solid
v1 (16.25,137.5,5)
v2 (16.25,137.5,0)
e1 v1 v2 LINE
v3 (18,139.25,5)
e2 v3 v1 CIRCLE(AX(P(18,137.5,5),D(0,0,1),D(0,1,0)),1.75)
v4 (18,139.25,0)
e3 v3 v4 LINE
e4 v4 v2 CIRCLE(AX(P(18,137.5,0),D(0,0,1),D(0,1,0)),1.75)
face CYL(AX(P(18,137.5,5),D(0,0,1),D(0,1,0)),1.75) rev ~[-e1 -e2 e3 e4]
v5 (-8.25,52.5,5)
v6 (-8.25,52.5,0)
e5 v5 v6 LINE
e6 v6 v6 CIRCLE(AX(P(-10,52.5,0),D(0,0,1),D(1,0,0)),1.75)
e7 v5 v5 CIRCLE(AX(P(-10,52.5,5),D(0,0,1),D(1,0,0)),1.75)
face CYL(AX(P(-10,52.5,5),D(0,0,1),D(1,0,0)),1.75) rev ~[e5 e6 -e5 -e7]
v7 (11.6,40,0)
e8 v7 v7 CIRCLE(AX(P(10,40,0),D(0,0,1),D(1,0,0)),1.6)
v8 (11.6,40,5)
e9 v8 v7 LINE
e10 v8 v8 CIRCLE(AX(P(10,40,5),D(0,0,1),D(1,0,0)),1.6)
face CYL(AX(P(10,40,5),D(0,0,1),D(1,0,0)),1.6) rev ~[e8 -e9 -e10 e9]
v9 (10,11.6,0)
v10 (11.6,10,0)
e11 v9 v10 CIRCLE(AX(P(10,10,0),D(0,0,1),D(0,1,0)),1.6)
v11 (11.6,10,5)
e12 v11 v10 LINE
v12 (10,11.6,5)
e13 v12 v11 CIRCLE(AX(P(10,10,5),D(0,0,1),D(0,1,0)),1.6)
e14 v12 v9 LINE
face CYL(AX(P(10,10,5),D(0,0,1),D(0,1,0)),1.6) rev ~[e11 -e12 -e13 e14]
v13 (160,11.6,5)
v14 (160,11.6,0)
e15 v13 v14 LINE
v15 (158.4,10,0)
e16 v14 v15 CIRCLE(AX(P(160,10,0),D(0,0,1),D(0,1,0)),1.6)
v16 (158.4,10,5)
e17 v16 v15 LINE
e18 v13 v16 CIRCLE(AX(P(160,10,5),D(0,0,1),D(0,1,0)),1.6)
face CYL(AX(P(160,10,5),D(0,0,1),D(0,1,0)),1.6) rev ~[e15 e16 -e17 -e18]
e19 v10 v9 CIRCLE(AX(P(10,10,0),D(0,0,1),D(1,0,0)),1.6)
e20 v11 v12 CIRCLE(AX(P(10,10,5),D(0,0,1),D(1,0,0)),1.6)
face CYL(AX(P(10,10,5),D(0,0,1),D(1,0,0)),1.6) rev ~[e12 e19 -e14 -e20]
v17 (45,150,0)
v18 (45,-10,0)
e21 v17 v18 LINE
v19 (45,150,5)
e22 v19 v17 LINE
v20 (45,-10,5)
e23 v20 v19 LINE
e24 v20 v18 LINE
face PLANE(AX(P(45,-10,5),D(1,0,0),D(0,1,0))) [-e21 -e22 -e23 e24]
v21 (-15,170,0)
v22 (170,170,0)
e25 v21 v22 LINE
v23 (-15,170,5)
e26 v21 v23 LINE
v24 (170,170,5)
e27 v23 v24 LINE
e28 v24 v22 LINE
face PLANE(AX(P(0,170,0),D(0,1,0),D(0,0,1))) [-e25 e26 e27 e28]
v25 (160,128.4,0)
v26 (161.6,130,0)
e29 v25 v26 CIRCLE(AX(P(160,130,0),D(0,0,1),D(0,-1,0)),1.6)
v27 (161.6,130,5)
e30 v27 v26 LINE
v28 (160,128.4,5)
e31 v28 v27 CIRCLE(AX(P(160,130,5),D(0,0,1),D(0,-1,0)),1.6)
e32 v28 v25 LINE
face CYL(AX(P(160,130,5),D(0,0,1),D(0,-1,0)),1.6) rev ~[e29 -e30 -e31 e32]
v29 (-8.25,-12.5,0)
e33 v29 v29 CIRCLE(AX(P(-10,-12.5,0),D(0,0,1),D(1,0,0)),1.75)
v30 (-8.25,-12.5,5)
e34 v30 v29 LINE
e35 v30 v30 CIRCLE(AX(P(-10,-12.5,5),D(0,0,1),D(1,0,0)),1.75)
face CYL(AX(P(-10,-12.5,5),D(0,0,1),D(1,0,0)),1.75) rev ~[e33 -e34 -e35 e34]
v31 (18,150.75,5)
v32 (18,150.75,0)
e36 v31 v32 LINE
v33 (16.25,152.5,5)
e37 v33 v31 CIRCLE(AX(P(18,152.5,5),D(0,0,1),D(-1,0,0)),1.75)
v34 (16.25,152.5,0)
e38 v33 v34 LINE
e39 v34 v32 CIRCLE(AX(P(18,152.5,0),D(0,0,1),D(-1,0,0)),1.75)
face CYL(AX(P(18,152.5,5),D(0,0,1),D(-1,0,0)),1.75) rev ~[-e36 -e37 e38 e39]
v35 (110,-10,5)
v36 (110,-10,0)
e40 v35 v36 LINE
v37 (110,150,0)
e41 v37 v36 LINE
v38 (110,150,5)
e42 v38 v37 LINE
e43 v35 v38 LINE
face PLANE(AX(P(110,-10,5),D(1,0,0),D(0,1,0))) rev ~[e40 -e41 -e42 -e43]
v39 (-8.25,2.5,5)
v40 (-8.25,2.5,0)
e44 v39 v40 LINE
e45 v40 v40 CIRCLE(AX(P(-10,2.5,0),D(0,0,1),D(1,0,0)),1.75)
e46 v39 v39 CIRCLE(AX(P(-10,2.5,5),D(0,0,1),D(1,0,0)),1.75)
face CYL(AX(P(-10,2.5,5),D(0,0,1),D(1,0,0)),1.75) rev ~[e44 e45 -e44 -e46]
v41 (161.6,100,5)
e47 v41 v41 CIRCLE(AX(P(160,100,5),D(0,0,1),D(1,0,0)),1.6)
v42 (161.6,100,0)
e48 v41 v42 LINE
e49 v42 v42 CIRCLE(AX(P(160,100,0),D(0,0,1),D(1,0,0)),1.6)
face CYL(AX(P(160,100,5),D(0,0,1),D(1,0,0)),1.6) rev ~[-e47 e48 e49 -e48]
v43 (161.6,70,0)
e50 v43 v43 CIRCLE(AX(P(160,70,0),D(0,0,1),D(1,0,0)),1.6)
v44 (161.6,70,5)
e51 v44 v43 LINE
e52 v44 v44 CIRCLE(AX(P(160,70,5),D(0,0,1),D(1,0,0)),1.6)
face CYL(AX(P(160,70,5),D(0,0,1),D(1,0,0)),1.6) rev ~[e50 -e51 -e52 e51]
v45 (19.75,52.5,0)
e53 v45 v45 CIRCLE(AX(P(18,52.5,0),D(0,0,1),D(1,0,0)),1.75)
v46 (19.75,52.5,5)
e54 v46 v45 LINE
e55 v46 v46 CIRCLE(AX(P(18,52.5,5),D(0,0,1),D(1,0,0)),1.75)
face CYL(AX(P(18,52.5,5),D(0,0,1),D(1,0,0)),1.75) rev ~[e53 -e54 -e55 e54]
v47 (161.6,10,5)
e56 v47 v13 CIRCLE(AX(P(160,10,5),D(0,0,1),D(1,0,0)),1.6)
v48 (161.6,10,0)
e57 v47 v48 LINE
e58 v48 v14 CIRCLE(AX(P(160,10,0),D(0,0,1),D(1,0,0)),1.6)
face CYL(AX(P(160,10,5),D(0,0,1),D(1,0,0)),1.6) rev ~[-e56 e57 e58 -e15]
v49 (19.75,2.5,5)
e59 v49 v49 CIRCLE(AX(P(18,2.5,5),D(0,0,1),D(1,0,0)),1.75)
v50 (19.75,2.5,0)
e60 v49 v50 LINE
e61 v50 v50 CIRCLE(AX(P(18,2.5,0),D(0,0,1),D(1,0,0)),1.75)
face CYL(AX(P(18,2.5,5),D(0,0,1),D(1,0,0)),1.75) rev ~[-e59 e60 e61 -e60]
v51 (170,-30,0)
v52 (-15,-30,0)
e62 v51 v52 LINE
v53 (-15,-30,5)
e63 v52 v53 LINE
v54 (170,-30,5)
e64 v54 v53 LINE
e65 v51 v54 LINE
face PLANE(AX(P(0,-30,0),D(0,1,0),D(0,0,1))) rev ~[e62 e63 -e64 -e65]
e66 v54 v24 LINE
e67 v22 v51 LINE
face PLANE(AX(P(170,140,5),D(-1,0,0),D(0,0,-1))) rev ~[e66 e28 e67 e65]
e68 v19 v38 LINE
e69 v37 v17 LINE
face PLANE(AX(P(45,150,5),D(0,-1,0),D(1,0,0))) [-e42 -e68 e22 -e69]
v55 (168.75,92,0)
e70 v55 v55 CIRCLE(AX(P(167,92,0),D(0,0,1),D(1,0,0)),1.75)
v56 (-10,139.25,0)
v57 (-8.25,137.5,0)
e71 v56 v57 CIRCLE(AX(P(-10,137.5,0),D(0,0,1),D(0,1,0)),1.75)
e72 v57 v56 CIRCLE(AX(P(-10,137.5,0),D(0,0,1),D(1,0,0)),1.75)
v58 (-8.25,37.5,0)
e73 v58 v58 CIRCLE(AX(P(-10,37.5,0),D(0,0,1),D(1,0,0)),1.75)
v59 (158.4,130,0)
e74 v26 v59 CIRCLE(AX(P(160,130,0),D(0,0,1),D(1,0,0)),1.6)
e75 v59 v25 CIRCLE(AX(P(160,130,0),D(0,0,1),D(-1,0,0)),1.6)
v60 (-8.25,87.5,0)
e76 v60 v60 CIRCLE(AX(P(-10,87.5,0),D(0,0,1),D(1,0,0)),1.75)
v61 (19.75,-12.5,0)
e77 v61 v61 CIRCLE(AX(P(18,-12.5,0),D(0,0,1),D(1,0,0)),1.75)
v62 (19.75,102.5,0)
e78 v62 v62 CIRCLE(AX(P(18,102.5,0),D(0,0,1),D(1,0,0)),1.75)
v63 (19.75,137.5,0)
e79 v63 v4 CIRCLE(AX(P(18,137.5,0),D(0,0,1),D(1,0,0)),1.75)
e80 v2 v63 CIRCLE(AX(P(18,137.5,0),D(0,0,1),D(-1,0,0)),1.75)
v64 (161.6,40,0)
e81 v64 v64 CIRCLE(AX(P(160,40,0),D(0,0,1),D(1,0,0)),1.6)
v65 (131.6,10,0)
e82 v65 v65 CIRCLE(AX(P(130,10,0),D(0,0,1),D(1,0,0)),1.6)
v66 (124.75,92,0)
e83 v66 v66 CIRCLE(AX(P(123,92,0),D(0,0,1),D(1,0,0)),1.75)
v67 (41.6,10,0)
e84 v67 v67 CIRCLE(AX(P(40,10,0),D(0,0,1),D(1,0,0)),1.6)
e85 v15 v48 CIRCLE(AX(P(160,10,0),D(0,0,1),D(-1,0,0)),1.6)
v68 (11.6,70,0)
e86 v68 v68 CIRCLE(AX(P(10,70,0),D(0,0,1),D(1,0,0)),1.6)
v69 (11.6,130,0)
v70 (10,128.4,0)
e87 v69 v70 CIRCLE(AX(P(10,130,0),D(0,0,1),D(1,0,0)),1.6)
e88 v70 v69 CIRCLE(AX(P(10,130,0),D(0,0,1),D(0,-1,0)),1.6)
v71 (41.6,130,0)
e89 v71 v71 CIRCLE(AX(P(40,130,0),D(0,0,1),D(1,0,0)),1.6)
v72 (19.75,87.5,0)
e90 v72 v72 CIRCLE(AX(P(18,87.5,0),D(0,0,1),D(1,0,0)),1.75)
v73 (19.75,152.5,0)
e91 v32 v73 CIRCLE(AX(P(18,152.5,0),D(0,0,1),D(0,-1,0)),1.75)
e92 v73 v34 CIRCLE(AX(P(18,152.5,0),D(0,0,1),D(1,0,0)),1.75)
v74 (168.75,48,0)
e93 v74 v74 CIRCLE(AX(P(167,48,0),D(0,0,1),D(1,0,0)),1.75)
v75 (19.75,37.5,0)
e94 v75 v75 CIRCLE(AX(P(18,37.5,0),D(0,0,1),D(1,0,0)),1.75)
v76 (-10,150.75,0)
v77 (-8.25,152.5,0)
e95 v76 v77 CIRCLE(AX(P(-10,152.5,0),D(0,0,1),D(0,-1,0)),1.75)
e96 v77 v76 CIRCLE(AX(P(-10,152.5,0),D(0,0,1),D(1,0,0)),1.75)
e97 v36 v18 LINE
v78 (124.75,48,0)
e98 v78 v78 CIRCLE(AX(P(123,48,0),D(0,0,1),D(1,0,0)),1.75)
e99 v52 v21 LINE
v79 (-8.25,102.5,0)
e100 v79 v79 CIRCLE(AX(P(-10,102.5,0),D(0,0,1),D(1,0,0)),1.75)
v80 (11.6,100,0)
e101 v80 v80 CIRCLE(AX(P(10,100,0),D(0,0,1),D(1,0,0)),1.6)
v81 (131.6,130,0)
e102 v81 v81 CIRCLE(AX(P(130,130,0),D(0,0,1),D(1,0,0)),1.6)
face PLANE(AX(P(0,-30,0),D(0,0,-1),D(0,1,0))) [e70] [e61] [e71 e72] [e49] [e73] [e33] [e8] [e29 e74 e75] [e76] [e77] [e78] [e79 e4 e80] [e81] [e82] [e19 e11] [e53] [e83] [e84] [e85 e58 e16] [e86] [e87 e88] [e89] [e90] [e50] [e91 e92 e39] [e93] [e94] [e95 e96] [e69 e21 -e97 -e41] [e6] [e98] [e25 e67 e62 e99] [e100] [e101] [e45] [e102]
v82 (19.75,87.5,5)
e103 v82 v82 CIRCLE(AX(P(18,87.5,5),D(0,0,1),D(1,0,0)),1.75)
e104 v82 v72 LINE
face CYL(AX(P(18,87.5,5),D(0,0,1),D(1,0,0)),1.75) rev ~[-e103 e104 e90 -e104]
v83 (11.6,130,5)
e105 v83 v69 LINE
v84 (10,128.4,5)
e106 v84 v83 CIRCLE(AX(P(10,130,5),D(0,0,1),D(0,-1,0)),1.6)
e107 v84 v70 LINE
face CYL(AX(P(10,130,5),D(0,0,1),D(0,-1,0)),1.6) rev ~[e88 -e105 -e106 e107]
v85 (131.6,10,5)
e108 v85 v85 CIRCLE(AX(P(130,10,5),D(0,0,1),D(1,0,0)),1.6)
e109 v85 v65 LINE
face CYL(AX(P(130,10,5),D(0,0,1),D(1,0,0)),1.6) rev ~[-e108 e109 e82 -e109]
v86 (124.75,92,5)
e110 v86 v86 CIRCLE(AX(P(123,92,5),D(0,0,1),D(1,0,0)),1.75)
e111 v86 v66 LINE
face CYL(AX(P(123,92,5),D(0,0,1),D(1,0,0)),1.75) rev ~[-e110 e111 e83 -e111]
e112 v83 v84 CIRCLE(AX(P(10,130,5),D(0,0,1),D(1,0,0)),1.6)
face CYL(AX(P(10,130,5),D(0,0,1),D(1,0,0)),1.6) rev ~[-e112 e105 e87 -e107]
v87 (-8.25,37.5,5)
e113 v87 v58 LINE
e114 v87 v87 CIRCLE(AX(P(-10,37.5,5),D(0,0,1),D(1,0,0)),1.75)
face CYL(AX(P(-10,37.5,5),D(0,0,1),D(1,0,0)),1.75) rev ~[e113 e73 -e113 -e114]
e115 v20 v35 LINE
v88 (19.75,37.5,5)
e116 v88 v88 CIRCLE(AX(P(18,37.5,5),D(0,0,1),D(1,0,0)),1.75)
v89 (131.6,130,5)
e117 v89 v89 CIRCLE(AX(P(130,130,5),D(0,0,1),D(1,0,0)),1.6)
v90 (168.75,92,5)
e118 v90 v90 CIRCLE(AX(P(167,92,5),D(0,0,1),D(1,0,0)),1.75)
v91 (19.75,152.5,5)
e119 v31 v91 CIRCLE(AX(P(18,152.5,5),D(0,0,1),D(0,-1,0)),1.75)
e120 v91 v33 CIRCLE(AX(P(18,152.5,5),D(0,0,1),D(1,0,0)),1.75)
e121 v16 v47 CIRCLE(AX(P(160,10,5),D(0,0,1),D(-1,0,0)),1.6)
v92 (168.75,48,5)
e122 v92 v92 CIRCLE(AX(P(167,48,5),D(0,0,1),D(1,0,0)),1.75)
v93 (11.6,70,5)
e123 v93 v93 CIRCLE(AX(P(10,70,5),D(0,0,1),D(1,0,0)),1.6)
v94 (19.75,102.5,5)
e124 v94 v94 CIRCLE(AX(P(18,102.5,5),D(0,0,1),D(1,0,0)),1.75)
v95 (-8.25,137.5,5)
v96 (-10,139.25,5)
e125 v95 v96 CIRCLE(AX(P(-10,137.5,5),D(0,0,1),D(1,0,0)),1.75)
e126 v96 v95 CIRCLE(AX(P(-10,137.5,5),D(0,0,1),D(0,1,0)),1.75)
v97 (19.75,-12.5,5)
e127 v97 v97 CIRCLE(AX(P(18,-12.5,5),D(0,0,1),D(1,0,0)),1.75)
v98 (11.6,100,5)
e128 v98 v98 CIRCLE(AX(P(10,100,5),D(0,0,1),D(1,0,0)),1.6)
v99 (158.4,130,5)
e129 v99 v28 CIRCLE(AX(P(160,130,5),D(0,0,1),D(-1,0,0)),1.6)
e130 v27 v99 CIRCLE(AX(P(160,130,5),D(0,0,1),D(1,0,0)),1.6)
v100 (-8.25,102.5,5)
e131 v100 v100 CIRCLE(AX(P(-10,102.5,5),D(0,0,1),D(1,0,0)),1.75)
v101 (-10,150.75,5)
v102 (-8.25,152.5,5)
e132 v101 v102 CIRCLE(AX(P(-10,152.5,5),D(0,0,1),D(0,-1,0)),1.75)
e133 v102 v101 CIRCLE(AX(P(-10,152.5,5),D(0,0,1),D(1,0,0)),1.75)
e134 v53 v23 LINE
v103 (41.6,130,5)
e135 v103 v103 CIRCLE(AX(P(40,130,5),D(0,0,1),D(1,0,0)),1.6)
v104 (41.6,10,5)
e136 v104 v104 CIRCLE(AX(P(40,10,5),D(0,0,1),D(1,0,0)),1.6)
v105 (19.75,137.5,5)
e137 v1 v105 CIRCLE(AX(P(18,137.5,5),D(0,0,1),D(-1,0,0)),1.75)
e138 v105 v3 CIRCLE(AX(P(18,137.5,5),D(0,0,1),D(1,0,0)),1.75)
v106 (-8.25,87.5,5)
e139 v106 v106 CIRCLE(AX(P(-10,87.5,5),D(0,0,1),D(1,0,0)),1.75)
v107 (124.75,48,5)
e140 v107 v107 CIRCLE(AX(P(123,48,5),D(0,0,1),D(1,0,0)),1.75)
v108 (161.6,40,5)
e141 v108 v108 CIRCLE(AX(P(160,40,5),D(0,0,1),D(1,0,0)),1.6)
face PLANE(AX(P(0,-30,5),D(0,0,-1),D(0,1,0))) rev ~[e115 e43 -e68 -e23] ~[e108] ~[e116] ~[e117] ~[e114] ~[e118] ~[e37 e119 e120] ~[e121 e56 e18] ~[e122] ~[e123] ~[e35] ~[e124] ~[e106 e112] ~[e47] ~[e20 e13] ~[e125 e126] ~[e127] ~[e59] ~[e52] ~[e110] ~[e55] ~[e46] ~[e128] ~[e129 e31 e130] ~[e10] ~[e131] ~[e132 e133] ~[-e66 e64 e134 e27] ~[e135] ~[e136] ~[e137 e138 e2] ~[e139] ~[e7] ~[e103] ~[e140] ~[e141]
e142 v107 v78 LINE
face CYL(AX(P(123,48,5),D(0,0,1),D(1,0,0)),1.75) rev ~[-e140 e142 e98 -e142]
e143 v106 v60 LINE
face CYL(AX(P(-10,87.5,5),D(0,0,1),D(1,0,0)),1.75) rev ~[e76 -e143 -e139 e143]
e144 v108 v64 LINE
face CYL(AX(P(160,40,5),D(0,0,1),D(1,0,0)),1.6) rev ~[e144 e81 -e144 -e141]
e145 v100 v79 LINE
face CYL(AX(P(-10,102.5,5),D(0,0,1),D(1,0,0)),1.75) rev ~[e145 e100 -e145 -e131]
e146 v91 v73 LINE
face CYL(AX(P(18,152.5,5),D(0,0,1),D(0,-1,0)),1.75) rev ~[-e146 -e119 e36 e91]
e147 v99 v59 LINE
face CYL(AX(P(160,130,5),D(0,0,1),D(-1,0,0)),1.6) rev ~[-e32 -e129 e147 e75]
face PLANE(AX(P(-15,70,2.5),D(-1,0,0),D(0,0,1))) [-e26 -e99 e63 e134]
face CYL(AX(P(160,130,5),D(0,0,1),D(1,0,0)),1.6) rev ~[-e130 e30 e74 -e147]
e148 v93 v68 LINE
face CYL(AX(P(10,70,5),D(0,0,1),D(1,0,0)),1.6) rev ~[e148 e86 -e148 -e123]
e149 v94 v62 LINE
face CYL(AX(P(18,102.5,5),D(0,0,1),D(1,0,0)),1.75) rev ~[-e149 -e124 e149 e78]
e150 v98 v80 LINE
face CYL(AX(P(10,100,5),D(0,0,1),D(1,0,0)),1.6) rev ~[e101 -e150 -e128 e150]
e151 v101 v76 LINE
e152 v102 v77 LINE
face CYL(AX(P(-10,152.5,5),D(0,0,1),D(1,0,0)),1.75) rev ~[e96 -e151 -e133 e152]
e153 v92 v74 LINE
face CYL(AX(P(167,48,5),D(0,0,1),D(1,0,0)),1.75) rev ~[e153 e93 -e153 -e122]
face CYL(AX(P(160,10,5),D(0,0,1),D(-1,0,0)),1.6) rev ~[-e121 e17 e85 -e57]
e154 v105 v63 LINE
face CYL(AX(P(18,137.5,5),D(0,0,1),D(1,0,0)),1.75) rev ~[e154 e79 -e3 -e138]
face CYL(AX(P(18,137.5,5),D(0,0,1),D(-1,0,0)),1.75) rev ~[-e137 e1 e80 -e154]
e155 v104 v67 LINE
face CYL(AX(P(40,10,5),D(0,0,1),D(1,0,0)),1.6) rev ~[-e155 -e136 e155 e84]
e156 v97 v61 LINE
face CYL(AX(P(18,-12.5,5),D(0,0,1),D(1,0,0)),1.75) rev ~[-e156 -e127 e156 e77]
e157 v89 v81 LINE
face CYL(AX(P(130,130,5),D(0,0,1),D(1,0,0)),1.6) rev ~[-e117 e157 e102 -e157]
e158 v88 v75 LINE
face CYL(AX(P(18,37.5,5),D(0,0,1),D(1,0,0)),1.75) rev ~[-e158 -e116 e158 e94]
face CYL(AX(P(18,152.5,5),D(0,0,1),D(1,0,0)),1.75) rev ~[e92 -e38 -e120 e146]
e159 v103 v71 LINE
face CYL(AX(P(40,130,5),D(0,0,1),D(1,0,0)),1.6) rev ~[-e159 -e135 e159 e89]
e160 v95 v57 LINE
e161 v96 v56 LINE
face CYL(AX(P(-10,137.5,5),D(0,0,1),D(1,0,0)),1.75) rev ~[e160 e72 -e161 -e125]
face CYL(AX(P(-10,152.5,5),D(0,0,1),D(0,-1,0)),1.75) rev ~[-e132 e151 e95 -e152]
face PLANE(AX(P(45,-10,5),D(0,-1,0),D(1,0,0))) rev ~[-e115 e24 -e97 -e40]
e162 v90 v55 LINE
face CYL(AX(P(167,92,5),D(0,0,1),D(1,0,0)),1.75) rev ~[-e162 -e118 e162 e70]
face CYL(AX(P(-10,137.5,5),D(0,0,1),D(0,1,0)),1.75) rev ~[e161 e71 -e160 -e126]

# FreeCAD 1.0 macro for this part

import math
import FreeCAD as App
import Part
import Sketcher
Q = App.Units.Quantity

doc = App.newDocument("Part")
params = doc.addObject("Spreadsheet::Sheet", "Params")
for row, (alias, value) in enumerate([
    ("sketch1_width", "170 mm"),
    ("sketch1_height", "140 mm"),
    ("pad1_length", "5 mm"),
    ("sketch2_radius", "1.6 mm"),
    ("pocket1_length", "5 mm"),
    ("sketch3_diameter", "3.2 mm"),
    ("pocket2_length", "5 mm"),
    ("sketch4_width", "170 mm"),
    ("sketch4_height", "5 mm"),
    ("pad2_length", "30 mm"),
    ("sketch5_width", "170 mm"),
    ("sketch5_height", "5 mm"),
    ("pad3_length", "30 mm"),
    ("sketch6_width", "65 mm"),
    ("sketch6_height", "160 mm"),
    ("pocket3_length", "30 mm"),
    ("sketch7_diameter", "3.5 mm"),
    ("pocket4_length", "30 mm"),
    ("sketch8_width", "200 mm"),
    ("sketch8_height", "5 mm"),
    ("pad4_length", "15 mm"),
    ("sketch9_diameter", "3.5 mm"),
    ("pocket5_length", "15 mm"),
], start=1):
    params.set(f"A{row}", alias)
    params.set(f"B{row}", "=" + value)
    params.setAlias(f"B{row}", alias)

body = doc.addObject("PartDesign::Body", "Body")

# Sketch on XY plane
sketch1 = body.newObject("Sketcher::SketchObject", "Sketch")
sketch1.AttachmentSupport = (doc.getObject("XY_Plane"), [""])
sketch1.MapMode = "FlatFace"
sketch1.addGeometry([
    Part.LineSegment(App.Vector(0, 140, 0), App.Vector(0, 0, 0)),
    Part.LineSegment(App.Vector(0, 0, 0), App.Vector(170, 0, 0)),
    Part.LineSegment(App.Vector(170, 0, 0), App.Vector(170, 140, 0)),
    Part.LineSegment(App.Vector(170, 140, 0), App.Vector(0, 140, 0)),
], False)
sketch1.addConstraint([
    Sketcher.Constraint("Coincident", 0, 2, 1, 1),
    Sketcher.Constraint("Coincident", 1, 2, 2, 1),
    Sketcher.Constraint("Coincident", 2, 2, 3, 1),
    Sketcher.Constraint("Coincident", 3, 2, 0, 1),
    Sketcher.Constraint("Vertical", 0),
    Sketcher.Constraint("Horizontal", 1),
    Sketcher.Constraint("Vertical", 2),
    Sketcher.Constraint("Horizontal", 3),
    Sketcher.Constraint("Coincident", 0, 2, -1, 1),
    Sketcher.Constraint("DistanceX", 1, 1, 1, 2, Q("170 mm")),
    Sketcher.Constraint("DistanceY", 0, 2, 0, 1, Q("140 mm")),
])
sketch1.setExpression("Constraints[9]", "Params.sketch1_width")
sketch1.setExpression("Constraints[10]", "Params.sketch1_height")
pad1 = body.newObject("PartDesign::Pad", "Pad")
pad1.Profile = sketch1
pad1.setExpression("Length", "Params.pad1_length")

# Sketch on XY plane
sketch2 = body.newObject("Sketcher::SketchObject", "Sketch001")
sketch2.AttachmentSupport = (doc.getObject("XY_Plane"), [""])
sketch2.MapMode = "FlatFace"
sketch2.AttachmentOffset = App.Placement(App.Vector(0, 0, 5), App.Rotation())
sketch2.addGeometry([
    Part.ArcOfCircle(Part.Circle(App.Vector(10, 130, 0), App.Vector(0, 0, 1), 1.6), math.radians(-90), math.radians(0)),  # 0
    Part.ArcOfCircle(Part.Circle(App.Vector(10, 130, 0), App.Vector(0, 0, 1), 1.6), math.radians(0), math.radians(270)),  # 1
    Part.ArcOfCircle(Part.Circle(App.Vector(10, 10, 0), App.Vector(0, 0, 1), 1.6), math.radians(0), math.radians(90)),  # 2
    Part.ArcOfCircle(Part.Circle(App.Vector(10, 10, 0), App.Vector(0, 0, 1), 1.6), math.radians(90), math.radians(360)),  # 3
    Part.ArcOfCircle(Part.Circle(App.Vector(160, 10, 0), App.Vector(0, 0, 1), 1.6), math.radians(0), math.radians(90)),  # 4
    Part.ArcOfCircle(Part.Circle(App.Vector(160, 10, 0), App.Vector(0, 0, 1), 1.6), math.radians(90), math.radians(180)),  # 5
    Part.ArcOfCircle(Part.Circle(App.Vector(160, 10, 0), App.Vector(0, 0, 1), 1.6), math.radians(180), math.radians(360)),  # 6
    Part.ArcOfCircle(Part.Circle(App.Vector(160, 130, 0), App.Vector(0, 0, 1), 1.6), math.radians(0), math.radians(180)),  # 7
    Part.ArcOfCircle(Part.Circle(App.Vector(160, 130, 0), App.Vector(0, 0, 1), 1.6), math.radians(180), math.radians(270)),  # 8
    Part.ArcOfCircle(Part.Circle(App.Vector(160, 130, 0), App.Vector(0, 0, 1), 1.6), math.radians(-90), math.radians(0)),  # 9
], False)
sketch2.addConstraint([
    Sketcher.Constraint("Tangent", 0, 1, 1, 2),
    Sketcher.Constraint("Coincident", 1, 1, 0, 2),
    Sketcher.Constraint("Tangent", 2, 1, 3, 2),
    Sketcher.Constraint("Coincident", 3, 1, 2, 2),
    Sketcher.Constraint("Tangent", 4, 2, 5, 1),
    Sketcher.Constraint("Tangent", 5, 2, 6, 1),
    Sketcher.Constraint("Tangent", 6, 2, 4, 1),
    Sketcher.Constraint("Tangent", 7, 2, 8, 1),
    Sketcher.Constraint("Tangent", 8, 2, 9, 1),
    Sketcher.Constraint("Tangent", 9, 2, 7, 1),
    Sketcher.Constraint("Equal", 1, 2),
    Sketcher.Constraint("Equal", 3, 4),
    Sketcher.Constraint("Equal", 6, 7),
    Sketcher.Constraint("Horizontal", 3, 3, 4, 3),
    Sketcher.Constraint("Horizontal", 1, 3, 7, 3),
    Sketcher.Constraint("Horizontal", 9, 3, 1, 1),
    Sketcher.Constraint("Horizontal", 6, 3, 2, 1),
    Sketcher.Constraint("Horizontal", 2, 1, 5, 2),
    Sketcher.Constraint("Horizontal", 5, 2, 6, 2),
    Sketcher.Constraint("Horizontal", 1, 1, 7, 2),
    Sketcher.Constraint("Horizontal", 7, 2, 9, 2),
    Sketcher.Constraint("Vertical", 1, 3, 2, 3),
    Sketcher.Constraint("Vertical", 6, 3, 7, 3),
    Sketcher.Constraint("Vertical", 3, 3, 0, 1),
    Sketcher.Constraint("Vertical", 0, 1, 3, 1),
    Sketcher.Constraint("Vertical", 9, 3, 4, 2),
    Sketcher.Constraint("Vertical", 4, 2, 8, 2),
    Sketcher.Constraint("Radius", 0, Q("1.6 mm")),
    Sketcher.Constraint("DistanceX", -1, 1, 0, 3, Q("10 mm")),
    Sketcher.Constraint("DistanceY", -1, 1, 0, 3, Q("130 mm")),
    Sketcher.Constraint("DistanceY", -1, 1, 2, 3, Q("10 mm")),
    Sketcher.Constraint("DistanceX", -1, 1, 4, 3, Q("160 mm")),
])
sketch2.setExpression("Constraints[27]", "Params.sketch2_radius")
pocket1 = body.newObject("PartDesign::Pocket", "Pocket")
pocket1.Profile = sketch2
pocket1.setExpression("Length", "Params.pocket1_length")

# Sketch on XY plane
sketch3 = body.newObject("Sketcher::SketchObject", "Sketch002")
sketch3.AttachmentSupport = (doc.getObject("XY_Plane"), [""])
sketch3.MapMode = "FlatFace"
sketch3.AttachmentOffset = App.Placement(App.Vector(0, 0, 5), App.Rotation())
sketch3.addGeometry([
    Part.Circle(App.Vector(10, 130, 0), App.Vector(0, 0, 1), 1.6),  # 0
    Part.Circle(App.Vector(40, 130, 0), App.Vector(0, 0, 1), 1.6),  # 1
    Part.Circle(App.Vector(70, 130, 0), App.Vector(0, 0, 1), 1.6),  # 2
    Part.Circle(App.Vector(100, 130, 0), App.Vector(0, 0, 1), 1.6),  # 3
    Part.Circle(App.Vector(130, 130, 0), App.Vector(0, 0, 1), 1.6),  # 4
    Part.Circle(App.Vector(10, 10, 0), App.Vector(0, 0, 1), 1.6),  # 5
    Part.Circle(App.Vector(40, 10, 0), App.Vector(0, 0, 1), 1.6),  # 6
    Part.Circle(App.Vector(70, 10, 0), App.Vector(0, 0, 1), 1.6),  # 7
    Part.Circle(App.Vector(100, 10, 0), App.Vector(0, 0, 1), 1.6),  # 8
    Part.Circle(App.Vector(130, 10, 0), App.Vector(0, 0, 1), 1.6),  # 9
    Part.Circle(App.Vector(160, 130, 0), App.Vector(0, 0, 1), 1.6),  # 10
    Part.Circle(App.Vector(10, 100, 0), App.Vector(0, 0, 1), 1.6),  # 11
    Part.Circle(App.Vector(160, 100, 0), App.Vector(0, 0, 1), 1.6),  # 12
    Part.Circle(App.Vector(10, 70, 0), App.Vector(0, 0, 1), 1.6),  # 13
    Part.Circle(App.Vector(160, 70, 0), App.Vector(0, 0, 1), 1.6),  # 14
    Part.Circle(App.Vector(10, 40, 0), App.Vector(0, 0, 1), 1.6),  # 15
    Part.Circle(App.Vector(160, 40, 0), App.Vector(0, 0, 1), 1.6),  # 16
], False)
sketch3.addConstraint([
    Sketcher.Constraint("Equal", 0, 1),
    Sketcher.Constraint("Equal", 1, 2),
    Sketcher.Constraint("Equal", 2, 3),
    Sketcher.Constraint("Equal", 3, 4),
    Sketcher.Constraint("Equal", 4, 5),
    Sketcher.Constraint("Equal", 5, 6),
    Sketcher.Constraint("Equal", 6, 7),
    Sketcher.Constraint("Equal", 7, 8),
    Sketcher.Constraint("Equal", 8, 9),
    Sketcher.Constraint("Equal", 9, 10),
    Sketcher.Constraint("Equal", 10, 11),
    Sketcher.Constraint("Equal", 11, 12),
    Sketcher.Constraint("Equal", 12, 13),
    Sketcher.Constraint("Equal", 13, 14),
    Sketcher.Constraint("Equal", 14, 15),
    Sketcher.Constraint("Equal", 15, 16),
    Sketcher.Constraint("Horizontal", 0, 3, 1, 3),
    Sketcher.Constraint("Horizontal", 1, 3, 2, 3),
    Sketcher.Constraint("Horizontal", 2, 3, 3, 3),
    Sketcher.Constraint("Horizontal", 3, 3, 4, 3),
    Sketcher.Constraint("Horizontal", 5, 3, 6, 3),
    Sketcher.Constraint("Horizontal", 6, 3, 7, 3),
    Sketcher.Constraint("Horizontal", 7, 3, 8, 3),
    Sketcher.Constraint("Horizontal", 8, 3, 9, 3),
    Sketcher.Constraint("Horizontal", 4, 3, 10, 3),
    Sketcher.Constraint("Horizontal", 11, 3, 12, 3),
    Sketcher.Constraint("Horizontal", 13, 3, 14, 3),
    Sketcher.Constraint("Horizontal", 15, 3, 16, 3),
    Sketcher.Constraint("Vertical", 0, 3, 5, 3),
    Sketcher.Constraint("Vertical", 1, 3, 6, 3),
    Sketcher.Constraint("Vertical", 2, 3, 7, 3),
    Sketcher.Constraint("Vertical", 3, 3, 8, 3),
    Sketcher.Constraint("Vertical", 4, 3, 9, 3),
    Sketcher.Constraint("Vertical", 5, 3, 11, 3),
    Sketcher.Constraint("Vertical", 10, 3, 12, 3),
    Sketcher.Constraint("Vertical", 11, 3, 13, 3),
    Sketcher.Constraint("Vertical", 12, 3, 14, 3),
    Sketcher.Constraint("Vertical", 13, 3, 15, 3),
    Sketcher.Constraint("Vertical", 14, 3, 16, 3),
    Sketcher.Constraint("Diameter", 0, Q("3.2 mm")),
    Sketcher.Constraint("DistanceX", -1, 1, 0, 3, Q("10 mm")),
    Sketcher.Constraint("DistanceY", -1, 1, 0, 3, Q("130 mm")),
    Sketcher.Constraint("DistanceX", -1, 1, 1, 3, Q("40 mm")),
    Sketcher.Constraint("DistanceX", -1, 1, 2, 3, Q("70 mm")),
    Sketcher.Constraint("DistanceX", -1, 1, 3, 3, Q("100 mm")),
    Sketcher.Constraint("DistanceX", -1, 1, 4, 3, Q("130 mm")),
    Sketcher.Constraint("DistanceY", -1, 1, 5, 3, Q("10 mm")),
    Sketcher.Constraint("DistanceX", -1, 1, 10, 3, Q("160 mm")),
    Sketcher.Constraint("DistanceY", -1, 1, 11, 3, Q("100 mm")),
    Sketcher.Constraint("DistanceY", -1, 1, 13, 3, Q("70 mm")),
    Sketcher.Constraint("DistanceY", -1, 1, 15, 3, Q("40 mm")),
])
sketch3.setExpression("Constraints[39]", "Params.sketch3_diameter")
pocket2 = body.newObject("PartDesign::Pocket", "Pocket001")
pocket2.Profile = sketch3
pocket2.setExpression("Length", "Params.pocket2_length")

# Sketch on XZ plane
sketch4 = body.newObject("Sketcher::SketchObject", "Sketch003")
sketch4.AttachmentSupport = (doc.getObject("XZ_Plane"), [""])
sketch4.MapMode = "FlatFace"
sketch4.addGeometry([
    Part.LineSegment(App.Vector(0, 5, 0), App.Vector(0, 0, 0)),
    Part.LineSegment(App.Vector(0, 0, 0), App.Vector(170, 0, 0)),
    Part.LineSegment(App.Vector(170, 0, 0), App.Vector(170, 5, 0)),
    Part.LineSegment(App.Vector(170, 5, 0), App.Vector(0, 5, 0)),
], False)
sketch4.addConstraint([
    Sketcher.Constraint("Coincident", 0, 2, 1, 1),
    Sketcher.Constraint("Coincident", 1, 2, 2, 1),
    Sketcher.Constraint("Coincident", 2, 2, 3, 1),
    Sketcher.Constraint("Coincident", 3, 2, 0, 1),
    Sketcher.Constraint("Vertical", 0),
    Sketcher.Constraint("Horizontal", 1),
    Sketcher.Constraint("Vertical", 2),
    Sketcher.Constraint("Horizontal", 3),
    Sketcher.Constraint("Coincident", 0, 2, -1, 1),
    Sketcher.Constraint("DistanceX", 1, 1, 1, 2, Q("170 mm")),
    Sketcher.Constraint("DistanceY", 0, 2, 0, 1, Q("5 mm")),
])
sketch4.setExpression("Constraints[9]", "Params.sketch4_width")
sketch4.setExpression("Constraints[10]", "Params.sketch4_height")
pad2 = body.newObject("PartDesign::Pad", "Pad001")
pad2.Profile = sketch4
pad2.setExpression("Length", "Params.pad2_length")

# Sketch on XZ plane
sketch5 = body.newObject("Sketcher::SketchObject", "Sketch004")
sketch5.AttachmentSupport = (doc.getObject("XZ_Plane"), [""])
sketch5.MapMode = "FlatFace"
sketch5.AttachmentOffset = App.Placement(App.Vector(0, 0, -140), App.Rotation())
sketch5.addGeometry([
    Part.LineSegment(App.Vector(0, 0, 0), App.Vector(0, 5, 0)),
    Part.LineSegment(App.Vector(0, 5, 0), App.Vector(170, 5, 0)),
    Part.LineSegment(App.Vector(170, 5, 0), App.Vector(170, 0, 0)),
    Part.LineSegment(App.Vector(170, 0, 0), App.Vector(0, 0, 0)),
], False)
sketch5.addConstraint([
    Sketcher.Constraint("Coincident", 0, 2, 1, 1),
    Sketcher.Constraint("Coincident", 1, 2, 2, 1),
    Sketcher.Constraint("Coincident", 2, 2, 3, 1),
    Sketcher.Constraint("Coincident", 3, 2, 0, 1),
    Sketcher.Constraint("Vertical", 0),
    Sketcher.Constraint("Horizontal", 1),
    Sketcher.Constraint("Vertical", 2),
    Sketcher.Constraint("Horizontal", 3),
    Sketcher.Constraint("Coincident", 3, 2, -1, 1),
    Sketcher.Constraint("DistanceX", 1, 1, 1, 2, Q("170 mm")),
    Sketcher.Constraint("DistanceY", 0, 1, 0, 2, Q("5 mm")),
])
sketch5.setExpression("Constraints[9]", "Params.sketch5_width")
sketch5.setExpression("Constraints[10]", "Params.sketch5_height")
pad3 = body.newObject("PartDesign::Pad", "Pad002")
pad3.Profile = sketch5
pad3.setExpression("Length", "Params.pad3_length")
pad3.Reversed = True

# Sketch on XY plane
sketch6 = body.newObject("Sketcher::SketchObject", "Sketch005")
sketch6.AttachmentSupport = (doc.getObject("XY_Plane"), [""])
sketch6.MapMode = "FlatFace"
sketch6.AttachmentOffset = App.Placement(App.Vector(0, 0, 5), App.Rotation())
sketch6.addGeometry([
    Part.LineSegment(App.Vector(45, 150, 0), App.Vector(45, -10, 0)),
    Part.LineSegment(App.Vector(45, -10, 0), App.Vector(110, -10, 0)),
    Part.LineSegment(App.Vector(110, -10, 0), App.Vector(110, 150, 0)),
    Part.LineSegment(App.Vector(110, 150, 0), App.Vector(45, 150, 0)),
], False)
sketch6.addConstraint([
    Sketcher.Constraint("Coincident", 0, 2, 1, 1),
    Sketcher.Constraint("Coincident", 1, 2, 2, 1),
    Sketcher.Constraint("Coincident", 2, 2, 3, 1),
    Sketcher.Constraint("Coincident", 3, 2, 0, 1),
    Sketcher.Constraint("Vertical", 0),
    Sketcher.Constraint("Horizontal", 1),
    Sketcher.Constraint("Vertical", 2),
    Sketcher.Constraint("Horizontal", 3),
    Sketcher.Constraint("DistanceX", 1, 1, 1, 2, Q("65 mm")),
    Sketcher.Constraint("DistanceY", 0, 2, 0, 1, Q("160 mm")),
    Sketcher.Constraint("DistanceX", -1, 1, 0, 2, Q("45 mm")),
    Sketcher.Constraint("DistanceY", 0, 2, -1, 1, Q("10 mm")),
])
sketch6.setExpression("Constraints[8]", "Params.sketch6_width")
sketch6.setExpression("Constraints[9]", "Params.sketch6_height")
pocket3 = body.newObject("PartDesign::Pocket", "Pocket002")
pocket3.Profile = sketch6
pocket3.setExpression("Length", "Params.pocket3_length")

# Sketch on XY plane
sketch7 = body.newObject("Sketcher::SketchObject", "Sketch006")
sketch7.AttachmentSupport = (doc.getObject("XY_Plane"), [""])
sketch7.MapMode = "FlatFace"
sketch7.AttachmentOffset = App.Placement(App.Vector(0, 0, 5), App.Rotation())
sketch7.addGeometry([
    Part.Circle(App.Vector(123, 92, 0), App.Vector(0, 0, 1), 1.8),
    Part.Circle(App.Vector(167, 92, 0), App.Vector(0, 0, 1), 1.8),
    Part.Circle(App.Vector(123, 48, 0), App.Vector(0, 0, 1), 1.8),
    Part.Circle(App.Vector(167, 48, 0), App.Vector(0, 0, 1), 1.8),
], False)
sketch7.addConstraint([
    Sketcher.Constraint("Equal", 0, 1),
    Sketcher.Constraint("Equal", 1, 2),
    Sketcher.Constraint("Equal", 2, 3),
    Sketcher.Constraint("Horizontal", 0, 3, 1, 3),
    Sketcher.Constraint("Horizontal", 2, 3, 3, 3),
    Sketcher.Constraint("Vertical", 0, 3, 2, 3),
    Sketcher.Constraint("Vertical", 1, 3, 3, 3),
    Sketcher.Constraint("Diameter", 0, Q("3.5 mm")),
    Sketcher.Constraint("DistanceX", -1, 1, 0, 3, Q("123 mm")),
    Sketcher.Constraint("DistanceY", -1, 1, 0, 3, Q("92 mm")),
    Sketcher.Constraint("DistanceX", -1, 1, 1, 3, Q("167 mm")),
    Sketcher.Constraint("DistanceY", -1, 1, 2, 3, Q("48 mm")),
])
sketch7.setExpression("Constraints[7]", "Params.sketch7_diameter")
pocket4 = body.newObject("PartDesign::Pocket", "Pocket003")
pocket4.Profile = sketch7
pocket4.setExpression("Length", "Params.pocket4_length")

# Sketch on YZ plane
sketch8 = body.newObject("Sketcher::SketchObject", "Sketch007")
sketch8.AttachmentSupport = (doc.getObject("YZ_Plane"), [""])
sketch8.MapMode = "FlatFace"
sketch8.addGeometry([
    Part.LineSegment(App.Vector(170, 0, 0), App.Vector(-30, 0, 0)),
    Part.LineSegment(App.Vector(-30, 0, 0), App.Vector(-30, 5, 0)),
    Part.LineSegment(App.Vector(-30, 5, 0), App.Vector(170, 5, 0)),
    Part.LineSegment(App.Vector(170, 5, 0), App.Vector(170, 0, 0)),
], False)
sketch8.addConstraint([
    Sketcher.Constraint("Coincident", 0, 2, 1, 1),
    Sketcher.Constraint("Coincident", 1, 2, 2, 1),
    Sketcher.Constraint("Coincident", 2, 2, 3, 1),
    Sketcher.Constraint("Coincident", 3, 2, 0, 1),
    Sketcher.Constraint("Horizontal", 0),
    Sketcher.Constraint("Vertical", 1),
    Sketcher.Constraint("Horizontal", 2),
    Sketcher.Constraint("Vertical", 3),
    Sketcher.Constraint("PointOnObject", 0, 2, -1),
    Sketcher.Constraint("DistanceX", 0, 2, 0, 1, Q("200 mm")),
    Sketcher.Constraint("DistanceY", 1, 1, 1, 2, Q("5 mm")),
    Sketcher.Constraint("DistanceX", 0, 2, -1, 1, Q("30 mm")),
])
sketch8.setExpression("Constraints[9]", "Params.sketch8_width")
sketch8.setExpression("Constraints[10]", "Params.sketch8_height")
pad4 = body.newObject("PartDesign::Pad", "Pad003")
pad4.Profile = sketch8
pad4.setExpression("Length", "Params.pad4_length")
pad4.Reversed = True

# Sketch on XY plane
sketch9 = body.newObject("Sketcher::SketchObject", "Sketch008")
sketch9.AttachmentSupport = (doc.getObject("XY_Plane"), [""])
sketch9.MapMode = "FlatFace"
sketch9.AttachmentOffset = App.Placement(App.Vector(0, 0, 5), App.Rotation())
sketch9.addGeometry([
    Part.ArcOfCircle(Part.Circle(App.Vector(-10, 152.5, 0), App.Vector(0, 0, 1), 1.8), math.radians(0), math.radians(270)),  # 0
    Part.ArcOfCircle(Part.Circle(App.Vector(-10, 152.5, 0), App.Vector(0, 0, 1), 1.8), math.radians(-90), math.radians(0)),  # 1
    Part.ArcOfCircle(Part.Circle(App.Vector(-10, 137.5, 0), App.Vector(0, 0, 1), 1.8), math.radians(0), math.radians(90)),  # 2
    Part.ArcOfCircle(Part.Circle(App.Vector(-10, 137.5, 0), App.Vector(0, 0, 1), 1.8), math.radians(90), math.radians(360)),  # 3
    Part.ArcOfCircle(Part.Circle(App.Vector(18, 137.5, 0), App.Vector(0, 0, 1), 1.8), math.radians(90), math.radians(180)),  # 4
    Part.ArcOfCircle(Part.Circle(App.Vector(18, 137.5, 0), App.Vector(0, 0, 1), 1.8), math.radians(180), math.radians(360)),  # 5
    Part.ArcOfCircle(Part.Circle(App.Vector(18, 137.5, 0), App.Vector(0, 0, 1), 1.8), math.radians(0), math.radians(90)),  # 6
    Part.ArcOfCircle(Part.Circle(App.Vector(18, 152.5, 0), App.Vector(0, 0, 1), 1.8), math.radians(180), math.radians(270)),  # 7
    Part.ArcOfCircle(Part.Circle(App.Vector(18, 152.5, 0), App.Vector(0, 0, 1), 1.8), math.radians(-90), math.radians(0)),  # 8
    Part.ArcOfCircle(Part.Circle(App.Vector(18, 152.5, 0), App.Vector(0, 0, 1), 1.8), math.radians(0), math.radians(180)),  # 9
    Part.Circle(App.Vector(-10, 102.5, 0), App.Vector(0, 0, 1), 1.8),  # 10
    Part.Circle(App.Vector(18, 102.5, 0), App.Vector(0, 0, 1), 1.8),  # 11
    Part.Circle(App.Vector(-10, 87.5, 0), App.Vector(0, 0, 1), 1.8),  # 12
    Part.Circle(App.Vector(18, 87.5, 0), App.Vector(0, 0, 1), 1.8),  # 13
    Part.Circle(App.Vector(-10, 52.5, 0), App.Vector(0, 0, 1), 1.8),  # 14
    Part.Circle(App.Vector(18, 52.5, 0), App.Vector(0, 0, 1), 1.8),  # 15
    Part.Circle(App.Vector(-10, 37.5, 0), App.Vector(0, 0, 1), 1.8),  # 16
    Part.Circle(App.Vector(18, 37.5, 0), App.Vector(0, 0, 1), 1.8),  # 17
    Part.Circle(App.Vector(-10, 2.5, 0), App.Vector(0, 0, 1), 1.8),  # 18
    Part.Circle(App.Vector(18, 2.5, 0), App.Vector(0, 0, 1), 1.8),  # 19
    Part.Circle(App.Vector(-10, -12.5, 0), App.Vector(0, 0, 1), 1.8),  # 20
    Part.Circle(App.Vector(18, -12.5, 0), App.Vector(0, 0, 1), 1.8),  # 21
], False)
sketch9.addConstraint([
    Sketcher.Constraint("Tangent", 0, 1, 1, 2),
    Sketcher.Constraint("Coincident", 1, 1, 0, 2),
    Sketcher.Constraint("Tangent", 2, 1, 3, 2),
    Sketcher.Constraint("Coincident", 3, 1, 2, 2),
    Sketcher.Constraint("Tangent", 4, 2, 5, 1),
    Sketcher.Constraint("Tangent", 5, 2, 6, 1),
    Sketcher.Constraint("Tangent", 6, 2, 4, 1),
    Sketcher.Constraint("Tangent", 7, 2, 8, 1),
    Sketcher.Constraint("Tangent", 8, 2, 9, 1),
    Sketcher.Constraint("Tangent", 9, 2, 7, 1),
    Sketcher.Constraint("Equal", 1, 2),
    Sketcher.Constraint("Equal", 3, 4),
    Sketcher.Constraint("Equal", 6, 7),
    Sketcher.Constraint("Equal", 9, 10),
    Sketcher.Constraint("Equal", 10, 11),
    Sketcher.Constraint("Equal", 11, 12),
    Sketcher.Constraint("Equal", 12, 13),
    Sketcher.Constraint("Equal", 13, 14),
    Sketcher.Constraint("Equal", 14, 15),
    Sketcher.Constraint("Equal", 15, 16),
    Sketcher.Constraint("Equal", 16, 17),
    Sketcher.Constraint("Equal", 17, 18),
    Sketcher.Constraint("Equal", 18, 19),
    Sketcher.Constraint("Equal", 19, 20),
    Sketcher.Constraint("Equal", 20, 21),
    Sketcher.Constraint("Horizontal", 3, 3, 4, 3),
    Sketcher.Constraint("Horizontal", 1, 3, 7, 3),
    Sketcher.Constraint("Horizontal", 10, 3, 11, 3),
    Sketcher.Constraint("Horizontal", 12, 3, 13, 3),
    Sketcher.Constraint("Horizontal", 14, 3, 15, 3),
    Sketcher.Constraint("Horizontal", 16, 3, 17, 3),
    Sketcher.Constraint("Horizontal", 18, 3, 19, 3),
    Sketcher.Constraint("Horizontal", 20, 3, 21, 3),
    Sketcher.Constraint("Horizontal", 9, 3, 0, 1),
    Sketcher.Constraint("Horizontal", 6, 3, 2, 1),
    Sketcher.Constraint("Horizontal", 2, 1, 4, 2),
    Sketcher.Constraint("Horizontal", 4, 2, 5, 2),
    Sketcher.Constraint("Horizontal", 0, 1, 8, 2),
    Sketcher.Constraint("Horizontal", 8, 2, 9, 2),
    Sketcher.Constraint("Vertical", 1, 3, 2, 3),
    Sketcher.Constraint("Vertical", 6, 3, 7, 3),
    Sketcher.Constraint("Vertical", 3, 3, 10, 3),
    Sketcher.Constraint("Vertical", 9, 3, 11, 3),
    Sketcher.Constraint("Vertical", 10, 3, 12, 3),
    Sketcher.Constraint("Vertical", 11, 3, 13, 3),
    Sketcher.Constraint("Vertical", 12, 3, 14, 3),
    Sketcher.Constraint("Vertical", 13, 3, 15, 3),
    Sketcher.Constraint("Vertical", 14, 3, 16, 3),
    Sketcher.Constraint("Vertical", 15, 3, 17, 3),
    Sketcher.Constraint("Vertical", 16, 3, 18, 3),
    Sketcher.Constraint("Vertical", 17, 3, 19, 3),
    Sketcher.Constraint("Vertical", 18, 3, 20, 3),
    Sketcher.Constraint("Vertical", 19, 3, 21, 3),
    Sketcher.Constraint("Vertical", 20, 3, 1, 1),
    Sketcher.Constraint("Vertical", 1, 1, 3, 1),
    Sketcher.Constraint("Vertical", 21, 3, 6, 2),
    Sketcher.Constraint("Vertical", 6, 2, 7, 2),
    Sketcher.Constraint("Diameter", 10, Q("3.5 mm")),
    Sketcher.Constraint("DistanceX", 0, 3, -1, 1, Q("10 mm")),
    Sketcher.Constraint("DistanceX", -1, 1, 4, 3, Q("18 mm")),
    Sketcher.Constraint("DistanceY", 2, 3, 0, 3, Q("15 mm")),
    Sketcher.Constraint("DistanceY", 10, 3, 2, 3, Q("35 mm")),
    Sketcher.Constraint("DistanceY", 12, 3, 10, 3, Q("15 mm")),
    Sketcher.Constraint("DistanceY", 14, 3, 12, 3, Q("35 mm")),
    Sketcher.Constraint("DistanceY", 16, 3, 14, 3, Q("15 mm")),
    Sketcher.Constraint("DistanceY", 18, 3, 16, 3, Q("35 mm")),
    Sketcher.Constraint("DistanceY", 20, 3, 18, 3, Q("15 mm")),
    Sketcher.Constraint("DistanceY", -1, 1, 0, 3, Q("152.5 mm")),
])
sketch9.setExpression("Constraints[57]", "Params.sketch9_diameter")
pocket5 = body.newObject("PartDesign::Pocket", "Pocket004")
pocket5.Profile = sketch9
pocket5.setExpression("Length", "Params.pocket5_length")

doc.recompute()
